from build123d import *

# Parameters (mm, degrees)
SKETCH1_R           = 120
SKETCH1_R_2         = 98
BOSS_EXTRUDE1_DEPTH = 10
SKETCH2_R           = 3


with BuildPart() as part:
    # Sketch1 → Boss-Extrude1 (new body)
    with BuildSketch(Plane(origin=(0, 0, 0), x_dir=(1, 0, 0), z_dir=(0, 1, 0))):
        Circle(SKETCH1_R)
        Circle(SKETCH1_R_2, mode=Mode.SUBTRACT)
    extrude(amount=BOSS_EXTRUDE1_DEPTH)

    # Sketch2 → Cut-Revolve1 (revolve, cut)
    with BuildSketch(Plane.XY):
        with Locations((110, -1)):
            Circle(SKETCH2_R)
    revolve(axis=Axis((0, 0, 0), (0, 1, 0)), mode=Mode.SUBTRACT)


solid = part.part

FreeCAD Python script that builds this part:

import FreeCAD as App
import Part
import Sketcher

V = App.Vector

doc = App.newDocument("Part")
body = doc.addObject("PartDesign::Body", "Body")

# Sketch on XZ plane
sketch1 = body.newObject("Sketcher::SketchObject", "Sketch")
sketch1.AttachmentSupport = (doc.getObject("XZ_Plane"), [""])
sketch1.MapMode = "FlatFace"
sketch1.addGeometry(Part.Circle(V(0, 0, 0), V(0, 0, 1), 120), False)
sketch1.addGeometry(Part.Circle(V(0, 0, 0), V(0, 0, 1), 98), False)
sketch1.addConstraint(Sketcher.Constraint("Coincident", 0, 3, -1, 1))
sketch1.addConstraint(Sketcher.Constraint("Coincident", 1, 3, -1, 1))
sketch1.addConstraint(Sketcher.Constraint("Diameter", 0, 240.0))
sketch1.addConstraint(Sketcher.Constraint("Diameter", 1, 196.0))
pad1 = body.newObject("PartDesign::Pad", "Pad")
pad1.Profile = sketch1
pad1.Length = 10
pad1.Reversed = True

# Sketch on XY plane
sketch2 = body.newObject("Sketcher::SketchObject", "Sketch001")
sketch2.AttachmentSupport = (doc.getObject("XY_Plane"), [""])
sketch2.MapMode = "FlatFace"
sketch2.addGeometry(Part.Circle(V(110, -1, 0), V(0, 0, 1), 3), False)
sketch2.addConstraint(Sketcher.Constraint("Diameter", 0, 6.0))
sketch2.addConstraint(Sketcher.Constraint("DistanceX", -1, 1, 0, 3, 110.0))
sketch2.addConstraint(Sketcher.Constraint("DistanceY", 0, 3, -1, 1, 1.0))
groove = body.newObject("PartDesign::Groove", "Groove")
groove.Profile = sketch2
groove.ReferenceAxis = (sketch2, ["V_Axis"])
groove.Angle = 360

doc.recompute()
